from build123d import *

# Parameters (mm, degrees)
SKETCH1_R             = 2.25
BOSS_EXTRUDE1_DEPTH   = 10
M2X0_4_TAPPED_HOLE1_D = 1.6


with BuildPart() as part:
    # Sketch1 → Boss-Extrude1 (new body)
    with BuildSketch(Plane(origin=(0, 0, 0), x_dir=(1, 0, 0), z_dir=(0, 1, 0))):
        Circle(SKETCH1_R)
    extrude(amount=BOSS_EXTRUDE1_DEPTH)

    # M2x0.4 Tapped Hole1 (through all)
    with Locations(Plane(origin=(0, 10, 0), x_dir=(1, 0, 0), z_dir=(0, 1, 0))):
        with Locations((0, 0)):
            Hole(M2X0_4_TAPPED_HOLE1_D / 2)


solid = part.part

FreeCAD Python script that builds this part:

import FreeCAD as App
import Part
import Sketcher
from FreeCAD import Vector
Q = App.Units.Quantity

doc = App.newDocument("Part")
body = doc.addObject("PartDesign::Body", "Body")

# Sketch on XZ plane
sketch1 = body.newObject("Sketcher::SketchObject", "Sketch")
sketch1.AttachmentSupport = (doc.getObject("XZ_Plane"), [""])
sketch1.MapMode = "FlatFace"
sketch1.addGeometry(Part.Circle(Vector(0, 0, 0), Vector(0, 0, 1), 2.2), False)
sketch1.addConstraint([
    Sketcher.Constraint("Coincident", 0, 3, -1, 1),
    Sketcher.Constraint("Diameter", 0, Q("4.5 mm")),
])
pad1 = body.newObject("PartDesign::Pad", "Pad")
pad1.Profile = sketch1
pad1.Length = 10
pad1.Reversed = True

# Sketch on XZ plane
sketch2 = body.newObject("Sketcher::SketchObject", "Sketch001")
sketch2.AttachmentSupport = (doc.getObject("XZ_Plane"), [""])
sketch2.MapMode = "FlatFace"
sketch2.AttachmentOffset = App.Placement(Vector(0, 0, -10), App.Rotation())
sketch2.addGeometry(Part.Circle(Vector(0, 0, 0), Vector(0, 0, 1), 0.8), False)
sketch2.addConstraint([
    Sketcher.Constraint("Coincident", 0, 3, -1, 1),
    Sketcher.Constraint("Diameter", 0, Q("1.6 mm")),
])
doc.recompute()
hole = body.newObject("PartDesign::Hole", "Hole")
hole.Profile = sketch2
hole.ThreadType = "None"
hole.Diameter = 1.6
hole.DepthType = "ThroughAll"
hole.Reversed = True

doc.recompute()
